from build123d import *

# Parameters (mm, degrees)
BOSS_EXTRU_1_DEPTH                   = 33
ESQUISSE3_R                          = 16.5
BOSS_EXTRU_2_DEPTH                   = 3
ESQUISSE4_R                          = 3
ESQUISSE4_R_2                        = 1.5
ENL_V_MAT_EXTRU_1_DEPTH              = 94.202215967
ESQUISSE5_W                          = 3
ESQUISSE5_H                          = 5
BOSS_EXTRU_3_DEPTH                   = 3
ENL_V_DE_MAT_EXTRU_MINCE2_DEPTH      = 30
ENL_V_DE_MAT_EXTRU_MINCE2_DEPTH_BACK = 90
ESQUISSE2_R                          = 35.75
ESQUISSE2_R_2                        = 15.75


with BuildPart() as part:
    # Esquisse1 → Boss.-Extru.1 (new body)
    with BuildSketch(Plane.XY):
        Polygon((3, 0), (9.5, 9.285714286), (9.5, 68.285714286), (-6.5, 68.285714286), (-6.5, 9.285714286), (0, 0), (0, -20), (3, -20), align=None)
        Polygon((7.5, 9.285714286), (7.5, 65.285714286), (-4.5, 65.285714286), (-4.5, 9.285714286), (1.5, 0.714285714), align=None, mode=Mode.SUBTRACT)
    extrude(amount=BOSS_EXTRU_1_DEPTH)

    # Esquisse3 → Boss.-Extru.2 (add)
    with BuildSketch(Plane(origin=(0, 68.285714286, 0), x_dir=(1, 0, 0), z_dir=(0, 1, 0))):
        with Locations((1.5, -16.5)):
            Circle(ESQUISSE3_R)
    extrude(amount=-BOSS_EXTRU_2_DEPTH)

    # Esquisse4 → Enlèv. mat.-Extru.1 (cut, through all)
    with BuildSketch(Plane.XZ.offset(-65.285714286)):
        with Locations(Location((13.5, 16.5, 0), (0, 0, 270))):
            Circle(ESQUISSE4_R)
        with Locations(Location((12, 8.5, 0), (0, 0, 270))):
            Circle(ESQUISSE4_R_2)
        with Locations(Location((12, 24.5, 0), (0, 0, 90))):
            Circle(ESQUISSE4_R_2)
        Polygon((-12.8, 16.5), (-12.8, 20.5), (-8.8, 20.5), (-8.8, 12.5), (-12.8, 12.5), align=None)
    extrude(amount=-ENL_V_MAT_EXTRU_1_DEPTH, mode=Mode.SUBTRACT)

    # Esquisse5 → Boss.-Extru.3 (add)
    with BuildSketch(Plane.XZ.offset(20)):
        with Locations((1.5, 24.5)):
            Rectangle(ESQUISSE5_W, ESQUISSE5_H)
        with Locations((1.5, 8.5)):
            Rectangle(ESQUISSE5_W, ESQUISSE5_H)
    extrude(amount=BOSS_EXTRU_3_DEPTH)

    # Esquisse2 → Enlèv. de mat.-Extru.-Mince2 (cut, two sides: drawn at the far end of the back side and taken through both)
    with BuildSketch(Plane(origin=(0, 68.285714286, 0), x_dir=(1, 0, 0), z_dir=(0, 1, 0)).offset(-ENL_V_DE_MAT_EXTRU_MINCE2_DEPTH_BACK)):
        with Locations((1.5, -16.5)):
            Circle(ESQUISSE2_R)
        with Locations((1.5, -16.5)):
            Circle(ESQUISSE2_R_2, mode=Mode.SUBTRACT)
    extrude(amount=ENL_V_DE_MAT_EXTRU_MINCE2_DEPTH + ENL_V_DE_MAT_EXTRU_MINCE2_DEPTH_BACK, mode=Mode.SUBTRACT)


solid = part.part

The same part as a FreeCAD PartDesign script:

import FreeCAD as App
import Part
import Sketcher

doc = App.newDocument("Part")
body = doc.addObject("PartDesign::Body", "Body")

# Sketch on XY plane
sketch1 = body.newObject("Sketcher::SketchObject", "Sketch")
sketch1.AttachmentSupport = (doc.getObject("XY_Plane"), [""])
sketch1.MapMode = "FlatFace"
sketch1.addGeometry(Part.LineSegment(App.Vector(3, 0, 0), App.Vector(9.5, 9.285714, 0)), False)
sketch1.addGeometry(Part.LineSegment(App.Vector(9.5, 9.285714, 0), App.Vector(9.5, 68.285714, 0)), False)
sketch1.addGeometry(Part.LineSegment(App.Vector(9.5, 68.285714, 0), App.Vector(-6.5, 68.285714, 0)), False)
sketch1.addGeometry(Part.LineSegment(App.Vector(-6.5, 68.285714, 0), App.Vector(-6.5, 9.285714, 0)), False)
sketch1.addGeometry(Part.LineSegment(App.Vector(-6.5, 9.285714, 0), App.Vector(0, 0, 0)), False)
sketch1.addGeometry(Part.LineSegment(App.Vector(0, 0, 0), App.Vector(0, -20, 0)), False)
sketch1.addGeometry(Part.LineSegment(App.Vector(0, -20, 0), App.Vector(3, -20, 0)), False)
sketch1.addGeometry(Part.LineSegment(App.Vector(3, -20, 0), App.Vector(3, 0, 0)), False)
sketch1.addGeometry(Part.LineSegment(App.Vector(7.5, 65.285714, 0), App.Vector(7.5, 9.285714, 0)), False)
sketch1.addGeometry(Part.LineSegment(App.Vector(7.5, 9.285714, 0), App.Vector(1.5, 0.714286, 0)), False)
sketch1.addGeometry(Part.LineSegment(App.Vector(1.5, 0.714286, 0), App.Vector(-4.5, 9.285714, 0)), False)
sketch1.addGeometry(Part.LineSegment(App.Vector(-4.5, 9.285714, 0), App.Vector(-4.5, 65.285714, 0)), False)
sketch1.addGeometry(Part.LineSegment(App.Vector(-4.5, 65.285714, 0), App.Vector(7.5, 65.285714, 0)), False)
sketch1.addConstraint(Sketcher.Constraint("Coincident", 0, 2, 1, 1))
sketch1.addConstraint(Sketcher.Constraint("Coincident", 1, 2, 2, 1))
sketch1.addConstraint(Sketcher.Constraint("Coincident", 2, 2, 3, 1))
sketch1.addConstraint(Sketcher.Constraint("Coincident", 3, 2, 4, 1))
sketch1.addConstraint(Sketcher.Constraint("Coincident", 4, 2, 5, 1))
sketch1.addConstraint(Sketcher.Constraint("Coincident", 5, 2, 6, 1))
sketch1.addConstraint(Sketcher.Constraint("Coincident", 6, 2, 7, 1))
sketch1.addConstraint(Sketcher.Constraint("Coincident", 7, 2, 0, 1))
sketch1.addConstraint(Sketcher.Constraint("Coincident", 8, 2, 9, 1))
sketch1.addConstraint(Sketcher.Constraint("Coincident", 9, 2, 10, 1))
sketch1.addConstraint(Sketcher.Constraint("Coincident", 10, 2, 11, 1))
sketch1.addConstraint(Sketcher.Constraint("Coincident", 11, 2, 12, 1))
sketch1.addConstraint(Sketcher.Constraint("Coincident", 12, 2, 8, 1))
sketch1.addConstraint(Sketcher.Constraint("Vertical", 1))
sketch1.addConstraint(Sketcher.Constraint("Horizontal", 2))
sketch1.addConstraint(Sketcher.Constraint("Vertical", 3))
sketch1.addConstraint(Sketcher.Constraint("Vertical", 5))
sketch1.addConstraint(Sketcher.Constraint("Horizontal", 6))
sketch1.addConstraint(Sketcher.Constraint("Vertical", 7))
sketch1.addConstraint(Sketcher.Constraint("Vertical", 8))
sketch1.addConstraint(Sketcher.Constraint("Vertical", 11))
sketch1.addConstraint(Sketcher.Constraint("Horizontal", 12))
sketch1.addConstraint(Sketcher.Constraint("Coincident", 4, 2, -1, 1))
sketch1.addConstraint(Sketcher.Constraint("PointOnObject", 7, 2, -1))
sketch1.addConstraint(Sketcher.Constraint("Parallel", 0, 9))
sketch1.addConstraint(Sketcher.Constraint("Parallel", 4, 10))
sketch1.addConstraint(Sketcher.Constraint("Horizontal", 0, 2, 3, 2))
sketch1.addConstraint(Sketcher.Constraint("Horizontal", 3, 2, 8, 2))
sketch1.addConstraint(Sketcher.Constraint("Horizontal", 8, 2, 10, 2))
sketch1.addConstraint(Sketcher.Constraint("Equal", 0, 4))
sketch1.addConstraint(Sketcher.Constraint("DistanceX", 2, 2, 2, 1, 16.0))
sketch1.addConstraint(Sketcher.Constraint("DistanceX", 6, 1, 6, 2, 3.0))
sketch1.addConstraint(Sketcher.Constraint("DistanceX", 12, 1, 12, 2, 12.0))
sketch1.addConstraint(Sketcher.Constraint("DistanceY", 1, 1, 1, 2, 59.0))
sketch1.addConstraint(Sketcher.Constraint("DistanceY", 5, 2, 5, 1, 20.0))
sketch1.addConstraint(Sketcher.Constraint("DistanceY", 8, 2, 8, 1, 56.0))
sketch1.addConstraint(Sketcher.Constraint("DistanceX", 8, 2, 0, 2, 2.0))
sketch1.addConstraint(Sketcher.Constraint("Distance", 0, 11.334659))
pad1 = body.newObject("PartDesign::Pad", "Pad")
pad1.Profile = sketch1
pad1.Length = 33

# Sketch on XZ plane
sketch2 = body.newObject("Sketcher::SketchObject", "Sketch001")
sketch2.AttachmentSupport = (doc.getObject("XZ_Plane"), [""])
sketch2.MapMode = "FlatFace"
sketch2.AttachmentOffset = App.Placement(App.Vector(0, 0, -68.285714), App.Rotation())
sketch2.addGeometry(Part.Circle(App.Vector(1.5, 16.5, 0), App.Vector(0, 0, 1), 16.5), False)
sketch2.addConstraint(Sketcher.Constraint("Diameter", 0, 33.0))
sketch2.addConstraint(Sketcher.Constraint("DistanceX", -1, 1, 0, 3, 1.5))
sketch2.addConstraint(Sketcher.Constraint("DistanceY", -1, 1, 0, 3, 16.5))
pad2 = body.newObject("PartDesign::Pad", "Pad001")
pad2.Profile = sketch2
pad2.Length = 3

# Sketch on XZ plane
sketch3 = body.newObject("Sketcher::SketchObject", "Sketch002")
sketch3.AttachmentSupport = (doc.getObject("XZ_Plane"), [""])
sketch3.MapMode = "FlatFace"
sketch3.AttachmentOffset = App.Placement(App.Vector(0, 0, -65.285714), App.Rotation())
sketch3.addGeometry(Part.Circle(App.Vector(13.5, 16.5, 0), App.Vector(0, 0, 1), 3), False)
sketch3.addGeometry(Part.Circle(App.Vector(12, 8.5, 0), App.Vector(0, 0, 1), 1.5), False)
sketch3.addGeometry(Part.Circle(App.Vector(12, 24.5, 0), App.Vector(0, 0, 1), 1.5), False)
sketch3.addGeometry(Part.LineSegment(App.Vector(-12.8, 20.5, 0), App.Vector(-12.8, 12.5, 0)), False)
sketch3.addGeometry(Part.LineSegment(App.Vector(-12.8, 12.5, 0), App.Vector(-8.8, 12.5, 0)), False)
sketch3.addGeometry(Part.LineSegment(App.Vector(-8.8, 12.5, 0), App.Vector(-8.8, 20.5, 0)), False)
sketch3.addGeometry(Part.LineSegment(App.Vector(-8.8, 20.5, 0), App.Vector(-12.8, 20.5, 0)), False)
sketch3.addConstraint(Sketcher.Constraint("Coincident", 3, 2, 4, 1))
sketch3.addConstraint(Sketcher.Constraint("Coincident", 4, 2, 5, 1))
sketch3.addConstraint(Sketcher.Constraint("Coincident", 5, 2, 6, 1))
sketch3.addConstraint(Sketcher.Constraint("Coincident", 6, 2, 3, 1))
sketch3.addConstraint(Sketcher.Constraint("Vertical", 3))
sketch3.addConstraint(Sketcher.Constraint("Horizontal", 4))
sketch3.addConstraint(Sketcher.Constraint("Vertical", 5))
sketch3.addConstraint(Sketcher.Constraint("Horizontal", 6))
sketch3.addConstraint(Sketcher.Constraint("Equal", 1, 2))
sketch3.addConstraint(Sketcher.Constraint("Vertical", 1, 3, 2, 3))
sketch3.addConstraint(Sketcher.Constraint("Diameter", 0, 6.0))
sketch3.addConstraint(Sketcher.Constraint("Diameter", 1, 3.0))
sketch3.addConstraint(Sketcher.Constraint("DistanceX", 4, 1, 4, 2, 4.0))
sketch3.addConstraint(Sketcher.Constraint("DistanceY", 3, 2, 3, 1, 8.0))
sketch3.addConstraint(Sketcher.Constraint("DistanceX", -1, 1, 1, 3, 12.0))
sketch3.addConstraint(Sketcher.Constraint("DistanceY", 1, 3, 0, 3, 8.0))
sketch3.addConstraint(Sketcher.Constraint("DistanceY", 0, 3, 2, 3, 8.0))
sketch3.addConstraint(Sketcher.Constraint("DistanceY", 1, 3, 3, 2, 4.0))
sketch3.addConstraint(Sketcher.Constraint("DistanceX", -1, 1, 0, 3, 13.5))
sketch3.addConstraint(Sketcher.Constraint("DistanceY", -1, 1, 0, 3, 16.5))
sketch3.addConstraint(Sketcher.Constraint("DistanceX", 3, 2, -1, 1, 12.8))
pocket1 = body.newObject("PartDesign::Pocket", "Pocket")
pocket1.Profile = sketch3
pocket1.Type = "ThroughAll"

# Sketch on XZ plane
sketch4 = body.newObject("Sketcher::SketchObject", "Sketch003")
sketch4.AttachmentSupport = (doc.getObject("XZ_Plane"), [""])
sketch4.MapMode = "FlatFace"
sketch4.AttachmentOffset = App.Placement(App.Vector(0, 0, 20), App.Rotation())
sketch4.addGeometry(Part.LineSegment(App.Vector(0, 27, 0), App.Vector(0, 22, 0)), False)
sketch4.addGeometry(Part.LineSegment(App.Vector(0, 22, 0), App.Vector(3, 22, 0)), False)
sketch4.addGeometry(Part.LineSegment(App.Vector(3, 22, 0), App.Vector(3, 27, 0)), False)
sketch4.addGeometry(Part.LineSegment(App.Vector(3, 27, 0), App.Vector(0, 27, 0)), False)
sketch4.addGeometry(Part.LineSegment(App.Vector(0, 11, 0), App.Vector(0, 6, 0)), False)
sketch4.addGeometry(Part.LineSegment(App.Vector(0, 6, 0), App.Vector(3, 6, 0)), False)
sketch4.addGeometry(Part.LineSegment(App.Vector(3, 6, 0), App.Vector(3, 11, 0)), False)
sketch4.addGeometry(Part.LineSegment(App.Vector(3, 11, 0), App.Vector(0, 11, 0)), False)
sketch4.addConstraint(Sketcher.Constraint("Coincident", 0, 2, 1, 1))
sketch4.addConstraint(Sketcher.Constraint("Coincident", 1, 2, 2, 1))
sketch4.addConstraint(Sketcher.Constraint("Coincident", 2, 2, 3, 1))
sketch4.addConstraint(Sketcher.Constraint("Coincident", 3, 2, 0, 1))
sketch4.addConstraint(Sketcher.Constraint("Coincident", 4, 2, 5, 1))
sketch4.addConstraint(Sketcher.Constraint("Coincident", 5, 2, 6, 1))
sketch4.addConstraint(Sketcher.Constraint("Coincident", 6, 2, 7, 1))
sketch4.addConstraint(Sketcher.Constraint("Coincident", 7, 2, 4, 1))
sketch4.addConstraint(Sketcher.Constraint("Vertical", 0))
sketch4.addConstraint(Sketcher.Constraint("Horizontal", 1))
sketch4.addConstraint(Sketcher.Constraint("Vertical", 2))
sketch4.addConstraint(Sketcher.Constraint("Horizontal", 3))
sketch4.addConstraint(Sketcher.Constraint("Vertical", 4))
sketch4.addConstraint(Sketcher.Constraint("Horizontal", 5))
sketch4.addConstraint(Sketcher.Constraint("Vertical", 6))
sketch4.addConstraint(Sketcher.Constraint("Horizontal", 7))
sketch4.addConstraint(Sketcher.Constraint("PointOnObject", 0, 2, -2))
sketch4.addConstraint(Sketcher.Constraint("PointOnObject", 4, 2, -2))
sketch4.addConstraint(Sketcher.Constraint("Vertical", 2, 2, 5, 2))
sketch4.addConstraint(Sketcher.Constraint("Equal", 2, 4))
sketch4.addConstraint(Sketcher.Constraint("DistanceX", 1, 1, 1, 2, 3.0))
sketch4.addConstraint(Sketcher.Constraint("DistanceY", 0, 2, 0, 1, 5.0))
sketch4.addConstraint(Sketcher.Constraint("DistanceY", -1, 1, 0, 2, 22.0))
sketch4.addConstraint(Sketcher.Constraint("DistanceY", -1, 1, 4, 2, 6.0))
pad3 = body.newObject("PartDesign::Pad", "Pad002")
pad3.Profile = sketch4
pad3.Length = 3

# Sketch on XZ plane
sketch5 = body.newObject("Sketcher::SketchObject", "Sketch004")
sketch5.AttachmentSupport = (doc.getObject("XZ_Plane"), [""])
sketch5.MapMode = "FlatFace"
sketch5.AttachmentOffset = App.Placement(App.Vector(0, 0, -68.285714), App.Rotation())
sketch5.addGeometry(Part.Circle(App.Vector(1.5, 16.5, 0), App.Vector(0, 0, 1), 35.75), False)
sketch5.addGeometry(Part.Circle(App.Vector(1.5, 16.5, 0), App.Vector(0, 0, 1), 15.75), False)
sketch5.addConstraint(Sketcher.Constraint("Coincident", 1, 3, 0, 3))
sketch5.addConstraint(Sketcher.Constraint("Diameter", 0, 71.5))
sketch5.addConstraint(Sketcher.Constraint("Diameter", 1, 31.5))
sketch5.addConstraint(Sketcher.Constraint("DistanceX", -1, 1, 0, 3, 1.5))
sketch5.addConstraint(Sketcher.Constraint("DistanceY", -1, 1, 0, 3, 16.5))
pocket2 = body.newObject("PartDesign::Pocket", "Pocket001")
pocket2.Profile = sketch5
pocket2.Type = "ThroughAll"
pocket2.Midplane = True

doc.recompute()
